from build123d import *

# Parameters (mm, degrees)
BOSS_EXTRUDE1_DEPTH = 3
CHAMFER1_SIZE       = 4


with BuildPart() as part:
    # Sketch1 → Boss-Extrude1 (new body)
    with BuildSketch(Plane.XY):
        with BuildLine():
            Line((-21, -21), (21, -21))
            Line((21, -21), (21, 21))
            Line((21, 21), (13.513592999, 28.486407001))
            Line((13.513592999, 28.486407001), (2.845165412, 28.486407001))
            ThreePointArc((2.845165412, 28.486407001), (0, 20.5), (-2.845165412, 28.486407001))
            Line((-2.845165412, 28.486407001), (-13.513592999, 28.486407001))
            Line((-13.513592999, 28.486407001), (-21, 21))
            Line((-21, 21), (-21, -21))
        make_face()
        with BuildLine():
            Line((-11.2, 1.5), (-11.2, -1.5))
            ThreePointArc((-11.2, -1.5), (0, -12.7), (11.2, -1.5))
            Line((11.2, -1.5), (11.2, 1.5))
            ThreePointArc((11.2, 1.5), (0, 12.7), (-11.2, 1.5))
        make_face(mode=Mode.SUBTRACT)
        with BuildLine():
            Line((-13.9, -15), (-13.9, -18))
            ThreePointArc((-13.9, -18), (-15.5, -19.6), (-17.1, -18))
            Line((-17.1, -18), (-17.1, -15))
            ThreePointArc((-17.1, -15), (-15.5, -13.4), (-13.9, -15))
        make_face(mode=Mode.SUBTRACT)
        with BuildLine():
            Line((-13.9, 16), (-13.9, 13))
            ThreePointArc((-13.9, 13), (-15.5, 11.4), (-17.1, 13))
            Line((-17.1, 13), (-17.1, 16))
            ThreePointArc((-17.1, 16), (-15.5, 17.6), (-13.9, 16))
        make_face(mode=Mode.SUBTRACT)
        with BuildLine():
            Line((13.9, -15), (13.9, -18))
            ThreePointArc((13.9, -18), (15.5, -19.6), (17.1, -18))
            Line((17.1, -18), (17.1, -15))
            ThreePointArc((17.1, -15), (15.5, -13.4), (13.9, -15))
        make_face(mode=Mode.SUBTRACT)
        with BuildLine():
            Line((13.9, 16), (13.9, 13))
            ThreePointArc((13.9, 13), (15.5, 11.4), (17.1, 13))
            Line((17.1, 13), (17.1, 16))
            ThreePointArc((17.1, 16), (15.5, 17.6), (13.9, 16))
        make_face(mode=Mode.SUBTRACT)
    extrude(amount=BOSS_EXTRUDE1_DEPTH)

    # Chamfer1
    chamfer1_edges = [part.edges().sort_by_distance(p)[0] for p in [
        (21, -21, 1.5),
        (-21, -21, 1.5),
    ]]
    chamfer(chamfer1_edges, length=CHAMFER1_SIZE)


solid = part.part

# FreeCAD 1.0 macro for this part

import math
import FreeCAD as App
import Part
import Sketcher
from FreeCAD import Vector
Q = App.Units.Quantity


def edges_at(feature, points):
    """Names of the edges that pass closest to the given points."""
    edges = feature.Shape.Edges
    near = lambda p: min(range(len(edges)), key=lambda i: edges[i].distToShape(Part.Vertex(*p))[0])
    return sorted({f"Edge{near(p) + 1}" for p in points})

doc = App.newDocument("Part")
body = doc.addObject("PartDesign::Body", "Body")

sketch1 = body.newObject("Sketcher::SketchObject", "Sketch")
sketch1.AttachmentSupport = (doc.getObject("XY_Plane"), [""])
sketch1.MapMode = "FlatFace"
sketch1.addGeometry([
    Part.LineSegment(Vector(-21, -21, 0), Vector(21, -21, 0)),
    Part.LineSegment(Vector(21, -21, 0), Vector(21, 21, 0)),
    Part.LineSegment(Vector(21, 21, 0), Vector(13.5, 28.5, 0)),
    Part.LineSegment(Vector(13.5, 28.5, 0), Vector(2.8, 28.5, 0)),
    Part.ArcOfCircle(Part.Circle(Vector(0, 25, 0), Vector(0, 0, 1), 4.5), math.radians(129), math.radians(411)),
    Part.LineSegment(Vector(-2.8, 28.5, 0), Vector(-13.5, 28.5, 0)),
    Part.LineSegment(Vector(-13.5, 28.5, 0), Vector(-21, 21, 0)),
    Part.LineSegment(Vector(-21, 21, 0), Vector(-21, -21, 0)),
    Part.ArcOfCircle(Part.Circle(Vector(-15.5, -15, 0), Vector(0, 0, 1), 1.6), math.radians(0), math.radians(180)),
    Part.LineSegment(Vector(-13.9, -15, 0), Vector(-13.9, -18, 0)),
    Part.ArcOfCircle(Part.Circle(Vector(-15.5, -18, 0), Vector(0, 0, 1), 1.6), math.radians(180), math.radians(360)),
    Part.LineSegment(Vector(-17.1, -18, 0), Vector(-17.1, -15, 0)),
    Part.LineSegment(Vector(13.9, -18, 0), Vector(13.9, -15, 0)),
    Part.ArcOfCircle(Part.Circle(Vector(15.5, -15, 0), Vector(0, 0, 1), 1.6), math.radians(0), math.radians(180)),
    Part.LineSegment(Vector(17.1, -15, 0), Vector(17.1, -18, 0)),
    Part.ArcOfCircle(Part.Circle(Vector(15.5, -18, 0), Vector(0, 0, 1), 1.6), math.radians(180), math.radians(360)),
    Part.ArcOfCircle(Part.Circle(Vector(-15.5, 16, 0), Vector(0, 0, 1), 1.6), math.radians(0), math.radians(180)),
    Part.LineSegment(Vector(-13.9, 16, 0), Vector(-13.9, 13, 0)),
    Part.ArcOfCircle(Part.Circle(Vector(-15.5, 13, 0), Vector(0, 0, 1), 1.6), math.radians(180), math.radians(360)),
    Part.LineSegment(Vector(-17.1, 13, 0), Vector(-17.1, 16, 0)),
    Part.LineSegment(Vector(-11.2, -1.5, 0), Vector(-11.2, 1.5, 0)),
    Part.ArcOfCircle(Part.Circle(Vector(0, 1.5, 0), Vector(0, 0, 1), 11.2), math.radians(0), math.radians(180)),
    Part.LineSegment(Vector(11.2, 1.5, 0), Vector(11.2, -1.5, 0)),
    Part.ArcOfCircle(Part.Circle(Vector(0, -1.5, 0), Vector(0, 0, 1), 11.2), math.radians(180), math.radians(360)),
    Part.LineSegment(Vector(13.9, 13, 0), Vector(13.9, 16, 0)),
    Part.ArcOfCircle(Part.Circle(Vector(15.5, 16, 0), Vector(0, 0, 1), 1.6), math.radians(0), math.radians(180)),
    Part.LineSegment(Vector(17.1, 16, 0), Vector(17.1, 13, 0)),
    Part.ArcOfCircle(Part.Circle(Vector(15.5, 13, 0), Vector(0, 0, 1), 1.6), math.radians(180), math.radians(360)),
], False)
sketch1.addConstraint([
    Sketcher.Constraint("Coincident", 0, 2, 1, 1),
    Sketcher.Constraint("Coincident", 1, 2, 2, 1),
    Sketcher.Constraint("Coincident", 2, 2, 3, 1),
    Sketcher.Constraint("Coincident", 3, 2, 4, 2),
    Sketcher.Constraint("Coincident", 4, 1, 5, 1),
    Sketcher.Constraint("Coincident", 5, 2, 6, 1),
    Sketcher.Constraint("Coincident", 6, 2, 7, 1),
    Sketcher.Constraint("Coincident", 7, 2, 0, 1),
    Sketcher.Constraint("Tangent", 8, 1, 9, 1),
    Sketcher.Constraint("Tangent", 9, 2, 10, 2),
    Sketcher.Constraint("Tangent", 10, 1, 11, 1),
    Sketcher.Constraint("Tangent", 11, 2, 8, 2),
    Sketcher.Constraint("Tangent", 12, 2, 13, 2),
    Sketcher.Constraint("Tangent", 13, 1, 14, 1),
    Sketcher.Constraint("Tangent", 14, 2, 15, 2),
    Sketcher.Constraint("Tangent", 15, 1, 12, 1),
    Sketcher.Constraint("Tangent", 16, 1, 17, 1),
    Sketcher.Constraint("Tangent", 17, 2, 18, 2),
    Sketcher.Constraint("Tangent", 18, 1, 19, 1),
    Sketcher.Constraint("Tangent", 19, 2, 16, 2),
    Sketcher.Constraint("Tangent", 20, 2, 21, 2),
    Sketcher.Constraint("Tangent", 21, 1, 22, 1),
    Sketcher.Constraint("Tangent", 22, 2, 23, 2),
    Sketcher.Constraint("Tangent", 23, 1, 20, 1),
    Sketcher.Constraint("Tangent", 24, 2, 25, 2),
    Sketcher.Constraint("Tangent", 25, 1, 26, 1),
    Sketcher.Constraint("Tangent", 26, 2, 27, 2),
    Sketcher.Constraint("Tangent", 27, 1, 24, 1),
    Sketcher.Constraint("Horizontal", 0),
    Sketcher.Constraint("Vertical", 1),
    Sketcher.Constraint("Horizontal", 3),
    Sketcher.Constraint("Horizontal", 5),
    Sketcher.Constraint("Vertical", 7),
    Sketcher.Constraint("Vertical", 9),
    Sketcher.Constraint("Vertical", 11),
    Sketcher.Constraint("Vertical", 12),
    Sketcher.Constraint("Vertical", 14),
    Sketcher.Constraint("Vertical", 17),
    Sketcher.Constraint("Vertical", 19),
    Sketcher.Constraint("Vertical", 20),
    Sketcher.Constraint("Vertical", 22),
    Sketcher.Constraint("Vertical", 24),
    Sketcher.Constraint("Vertical", 26),
    Sketcher.Constraint("Equal", 10, 13),
    Sketcher.Constraint("Equal", 15, 16),
    Sketcher.Constraint("Equal", 18, 25),
    Sketcher.Constraint("Symmetric", 21, 3, 23, 3, -1, 1),
    Sketcher.Constraint("Symmetric", 0, 2, 6, 2, -1, 1),
    Sketcher.Constraint("Symmetric", 8, 3, 13, 3, -2),
    Sketcher.Constraint("Symmetric", 16, 3, 25, 3, -2),
    Sketcher.Constraint("Symmetric", 3, 2, 4, 1, -2),
    Sketcher.Constraint("Perpendicular", 2, 6),
    Sketcher.Constraint("Horizontal", 10, 3, 15, 3),
    Sketcher.Constraint("Horizontal", 18, 3, 27, 3),
    Sketcher.Constraint("Horizontal", 1, 2, 6, 2),
    Sketcher.Constraint("Vertical", 10, 3, 16, 3),
    Sketcher.Constraint("Equal", 3, 5),
    Sketcher.Constraint("Equal", 0, 1),
    Sketcher.Constraint("Equal", 14, 17),
    Sketcher.Constraint("Equal", 19, 20),
    Sketcher.Constraint("Radius", 4, Q("4.5 mm")),
    Sketcher.Constraint("Radius", 8, Q("1.6 mm")),
    Sketcher.Constraint("Radius", 21, Q("11.2 mm")),
    Sketcher.Constraint("DistanceX", 0, 1, 0, 2, Q("42 mm")),
    Sketcher.Constraint("DistanceY", 9, 2, 9, 1, Q("3 mm")),
    Sketcher.Constraint("DistanceY", -1, 1, 4, 3, Q("25 mm")),
    Sketcher.Constraint("DistanceY", 8, 3, -1, 1, Q("15 mm")),
    Sketcher.Constraint("DistanceY", -1, 1, 16, 3, Q("16 mm")),
    Sketcher.Constraint("DistanceX", 8, 3, 13, 3, Q("31 mm")),
    Sketcher.Constraint("Distance", 2, Q("10.587378 mm")),
])
pad1 = body.newObject("PartDesign::Pad", "Pad")
pad1.Profile = sketch1
pad1.Length = 3
doc.recompute()

chamfer = body.newObject("PartDesign::Chamfer", "Chamfer")
chamfer.Base = (pad1, edges_at(pad1, [(21, -21, 1.5), (-21, -21, 1.5)]))
chamfer.Size = 4

doc.recompute()
